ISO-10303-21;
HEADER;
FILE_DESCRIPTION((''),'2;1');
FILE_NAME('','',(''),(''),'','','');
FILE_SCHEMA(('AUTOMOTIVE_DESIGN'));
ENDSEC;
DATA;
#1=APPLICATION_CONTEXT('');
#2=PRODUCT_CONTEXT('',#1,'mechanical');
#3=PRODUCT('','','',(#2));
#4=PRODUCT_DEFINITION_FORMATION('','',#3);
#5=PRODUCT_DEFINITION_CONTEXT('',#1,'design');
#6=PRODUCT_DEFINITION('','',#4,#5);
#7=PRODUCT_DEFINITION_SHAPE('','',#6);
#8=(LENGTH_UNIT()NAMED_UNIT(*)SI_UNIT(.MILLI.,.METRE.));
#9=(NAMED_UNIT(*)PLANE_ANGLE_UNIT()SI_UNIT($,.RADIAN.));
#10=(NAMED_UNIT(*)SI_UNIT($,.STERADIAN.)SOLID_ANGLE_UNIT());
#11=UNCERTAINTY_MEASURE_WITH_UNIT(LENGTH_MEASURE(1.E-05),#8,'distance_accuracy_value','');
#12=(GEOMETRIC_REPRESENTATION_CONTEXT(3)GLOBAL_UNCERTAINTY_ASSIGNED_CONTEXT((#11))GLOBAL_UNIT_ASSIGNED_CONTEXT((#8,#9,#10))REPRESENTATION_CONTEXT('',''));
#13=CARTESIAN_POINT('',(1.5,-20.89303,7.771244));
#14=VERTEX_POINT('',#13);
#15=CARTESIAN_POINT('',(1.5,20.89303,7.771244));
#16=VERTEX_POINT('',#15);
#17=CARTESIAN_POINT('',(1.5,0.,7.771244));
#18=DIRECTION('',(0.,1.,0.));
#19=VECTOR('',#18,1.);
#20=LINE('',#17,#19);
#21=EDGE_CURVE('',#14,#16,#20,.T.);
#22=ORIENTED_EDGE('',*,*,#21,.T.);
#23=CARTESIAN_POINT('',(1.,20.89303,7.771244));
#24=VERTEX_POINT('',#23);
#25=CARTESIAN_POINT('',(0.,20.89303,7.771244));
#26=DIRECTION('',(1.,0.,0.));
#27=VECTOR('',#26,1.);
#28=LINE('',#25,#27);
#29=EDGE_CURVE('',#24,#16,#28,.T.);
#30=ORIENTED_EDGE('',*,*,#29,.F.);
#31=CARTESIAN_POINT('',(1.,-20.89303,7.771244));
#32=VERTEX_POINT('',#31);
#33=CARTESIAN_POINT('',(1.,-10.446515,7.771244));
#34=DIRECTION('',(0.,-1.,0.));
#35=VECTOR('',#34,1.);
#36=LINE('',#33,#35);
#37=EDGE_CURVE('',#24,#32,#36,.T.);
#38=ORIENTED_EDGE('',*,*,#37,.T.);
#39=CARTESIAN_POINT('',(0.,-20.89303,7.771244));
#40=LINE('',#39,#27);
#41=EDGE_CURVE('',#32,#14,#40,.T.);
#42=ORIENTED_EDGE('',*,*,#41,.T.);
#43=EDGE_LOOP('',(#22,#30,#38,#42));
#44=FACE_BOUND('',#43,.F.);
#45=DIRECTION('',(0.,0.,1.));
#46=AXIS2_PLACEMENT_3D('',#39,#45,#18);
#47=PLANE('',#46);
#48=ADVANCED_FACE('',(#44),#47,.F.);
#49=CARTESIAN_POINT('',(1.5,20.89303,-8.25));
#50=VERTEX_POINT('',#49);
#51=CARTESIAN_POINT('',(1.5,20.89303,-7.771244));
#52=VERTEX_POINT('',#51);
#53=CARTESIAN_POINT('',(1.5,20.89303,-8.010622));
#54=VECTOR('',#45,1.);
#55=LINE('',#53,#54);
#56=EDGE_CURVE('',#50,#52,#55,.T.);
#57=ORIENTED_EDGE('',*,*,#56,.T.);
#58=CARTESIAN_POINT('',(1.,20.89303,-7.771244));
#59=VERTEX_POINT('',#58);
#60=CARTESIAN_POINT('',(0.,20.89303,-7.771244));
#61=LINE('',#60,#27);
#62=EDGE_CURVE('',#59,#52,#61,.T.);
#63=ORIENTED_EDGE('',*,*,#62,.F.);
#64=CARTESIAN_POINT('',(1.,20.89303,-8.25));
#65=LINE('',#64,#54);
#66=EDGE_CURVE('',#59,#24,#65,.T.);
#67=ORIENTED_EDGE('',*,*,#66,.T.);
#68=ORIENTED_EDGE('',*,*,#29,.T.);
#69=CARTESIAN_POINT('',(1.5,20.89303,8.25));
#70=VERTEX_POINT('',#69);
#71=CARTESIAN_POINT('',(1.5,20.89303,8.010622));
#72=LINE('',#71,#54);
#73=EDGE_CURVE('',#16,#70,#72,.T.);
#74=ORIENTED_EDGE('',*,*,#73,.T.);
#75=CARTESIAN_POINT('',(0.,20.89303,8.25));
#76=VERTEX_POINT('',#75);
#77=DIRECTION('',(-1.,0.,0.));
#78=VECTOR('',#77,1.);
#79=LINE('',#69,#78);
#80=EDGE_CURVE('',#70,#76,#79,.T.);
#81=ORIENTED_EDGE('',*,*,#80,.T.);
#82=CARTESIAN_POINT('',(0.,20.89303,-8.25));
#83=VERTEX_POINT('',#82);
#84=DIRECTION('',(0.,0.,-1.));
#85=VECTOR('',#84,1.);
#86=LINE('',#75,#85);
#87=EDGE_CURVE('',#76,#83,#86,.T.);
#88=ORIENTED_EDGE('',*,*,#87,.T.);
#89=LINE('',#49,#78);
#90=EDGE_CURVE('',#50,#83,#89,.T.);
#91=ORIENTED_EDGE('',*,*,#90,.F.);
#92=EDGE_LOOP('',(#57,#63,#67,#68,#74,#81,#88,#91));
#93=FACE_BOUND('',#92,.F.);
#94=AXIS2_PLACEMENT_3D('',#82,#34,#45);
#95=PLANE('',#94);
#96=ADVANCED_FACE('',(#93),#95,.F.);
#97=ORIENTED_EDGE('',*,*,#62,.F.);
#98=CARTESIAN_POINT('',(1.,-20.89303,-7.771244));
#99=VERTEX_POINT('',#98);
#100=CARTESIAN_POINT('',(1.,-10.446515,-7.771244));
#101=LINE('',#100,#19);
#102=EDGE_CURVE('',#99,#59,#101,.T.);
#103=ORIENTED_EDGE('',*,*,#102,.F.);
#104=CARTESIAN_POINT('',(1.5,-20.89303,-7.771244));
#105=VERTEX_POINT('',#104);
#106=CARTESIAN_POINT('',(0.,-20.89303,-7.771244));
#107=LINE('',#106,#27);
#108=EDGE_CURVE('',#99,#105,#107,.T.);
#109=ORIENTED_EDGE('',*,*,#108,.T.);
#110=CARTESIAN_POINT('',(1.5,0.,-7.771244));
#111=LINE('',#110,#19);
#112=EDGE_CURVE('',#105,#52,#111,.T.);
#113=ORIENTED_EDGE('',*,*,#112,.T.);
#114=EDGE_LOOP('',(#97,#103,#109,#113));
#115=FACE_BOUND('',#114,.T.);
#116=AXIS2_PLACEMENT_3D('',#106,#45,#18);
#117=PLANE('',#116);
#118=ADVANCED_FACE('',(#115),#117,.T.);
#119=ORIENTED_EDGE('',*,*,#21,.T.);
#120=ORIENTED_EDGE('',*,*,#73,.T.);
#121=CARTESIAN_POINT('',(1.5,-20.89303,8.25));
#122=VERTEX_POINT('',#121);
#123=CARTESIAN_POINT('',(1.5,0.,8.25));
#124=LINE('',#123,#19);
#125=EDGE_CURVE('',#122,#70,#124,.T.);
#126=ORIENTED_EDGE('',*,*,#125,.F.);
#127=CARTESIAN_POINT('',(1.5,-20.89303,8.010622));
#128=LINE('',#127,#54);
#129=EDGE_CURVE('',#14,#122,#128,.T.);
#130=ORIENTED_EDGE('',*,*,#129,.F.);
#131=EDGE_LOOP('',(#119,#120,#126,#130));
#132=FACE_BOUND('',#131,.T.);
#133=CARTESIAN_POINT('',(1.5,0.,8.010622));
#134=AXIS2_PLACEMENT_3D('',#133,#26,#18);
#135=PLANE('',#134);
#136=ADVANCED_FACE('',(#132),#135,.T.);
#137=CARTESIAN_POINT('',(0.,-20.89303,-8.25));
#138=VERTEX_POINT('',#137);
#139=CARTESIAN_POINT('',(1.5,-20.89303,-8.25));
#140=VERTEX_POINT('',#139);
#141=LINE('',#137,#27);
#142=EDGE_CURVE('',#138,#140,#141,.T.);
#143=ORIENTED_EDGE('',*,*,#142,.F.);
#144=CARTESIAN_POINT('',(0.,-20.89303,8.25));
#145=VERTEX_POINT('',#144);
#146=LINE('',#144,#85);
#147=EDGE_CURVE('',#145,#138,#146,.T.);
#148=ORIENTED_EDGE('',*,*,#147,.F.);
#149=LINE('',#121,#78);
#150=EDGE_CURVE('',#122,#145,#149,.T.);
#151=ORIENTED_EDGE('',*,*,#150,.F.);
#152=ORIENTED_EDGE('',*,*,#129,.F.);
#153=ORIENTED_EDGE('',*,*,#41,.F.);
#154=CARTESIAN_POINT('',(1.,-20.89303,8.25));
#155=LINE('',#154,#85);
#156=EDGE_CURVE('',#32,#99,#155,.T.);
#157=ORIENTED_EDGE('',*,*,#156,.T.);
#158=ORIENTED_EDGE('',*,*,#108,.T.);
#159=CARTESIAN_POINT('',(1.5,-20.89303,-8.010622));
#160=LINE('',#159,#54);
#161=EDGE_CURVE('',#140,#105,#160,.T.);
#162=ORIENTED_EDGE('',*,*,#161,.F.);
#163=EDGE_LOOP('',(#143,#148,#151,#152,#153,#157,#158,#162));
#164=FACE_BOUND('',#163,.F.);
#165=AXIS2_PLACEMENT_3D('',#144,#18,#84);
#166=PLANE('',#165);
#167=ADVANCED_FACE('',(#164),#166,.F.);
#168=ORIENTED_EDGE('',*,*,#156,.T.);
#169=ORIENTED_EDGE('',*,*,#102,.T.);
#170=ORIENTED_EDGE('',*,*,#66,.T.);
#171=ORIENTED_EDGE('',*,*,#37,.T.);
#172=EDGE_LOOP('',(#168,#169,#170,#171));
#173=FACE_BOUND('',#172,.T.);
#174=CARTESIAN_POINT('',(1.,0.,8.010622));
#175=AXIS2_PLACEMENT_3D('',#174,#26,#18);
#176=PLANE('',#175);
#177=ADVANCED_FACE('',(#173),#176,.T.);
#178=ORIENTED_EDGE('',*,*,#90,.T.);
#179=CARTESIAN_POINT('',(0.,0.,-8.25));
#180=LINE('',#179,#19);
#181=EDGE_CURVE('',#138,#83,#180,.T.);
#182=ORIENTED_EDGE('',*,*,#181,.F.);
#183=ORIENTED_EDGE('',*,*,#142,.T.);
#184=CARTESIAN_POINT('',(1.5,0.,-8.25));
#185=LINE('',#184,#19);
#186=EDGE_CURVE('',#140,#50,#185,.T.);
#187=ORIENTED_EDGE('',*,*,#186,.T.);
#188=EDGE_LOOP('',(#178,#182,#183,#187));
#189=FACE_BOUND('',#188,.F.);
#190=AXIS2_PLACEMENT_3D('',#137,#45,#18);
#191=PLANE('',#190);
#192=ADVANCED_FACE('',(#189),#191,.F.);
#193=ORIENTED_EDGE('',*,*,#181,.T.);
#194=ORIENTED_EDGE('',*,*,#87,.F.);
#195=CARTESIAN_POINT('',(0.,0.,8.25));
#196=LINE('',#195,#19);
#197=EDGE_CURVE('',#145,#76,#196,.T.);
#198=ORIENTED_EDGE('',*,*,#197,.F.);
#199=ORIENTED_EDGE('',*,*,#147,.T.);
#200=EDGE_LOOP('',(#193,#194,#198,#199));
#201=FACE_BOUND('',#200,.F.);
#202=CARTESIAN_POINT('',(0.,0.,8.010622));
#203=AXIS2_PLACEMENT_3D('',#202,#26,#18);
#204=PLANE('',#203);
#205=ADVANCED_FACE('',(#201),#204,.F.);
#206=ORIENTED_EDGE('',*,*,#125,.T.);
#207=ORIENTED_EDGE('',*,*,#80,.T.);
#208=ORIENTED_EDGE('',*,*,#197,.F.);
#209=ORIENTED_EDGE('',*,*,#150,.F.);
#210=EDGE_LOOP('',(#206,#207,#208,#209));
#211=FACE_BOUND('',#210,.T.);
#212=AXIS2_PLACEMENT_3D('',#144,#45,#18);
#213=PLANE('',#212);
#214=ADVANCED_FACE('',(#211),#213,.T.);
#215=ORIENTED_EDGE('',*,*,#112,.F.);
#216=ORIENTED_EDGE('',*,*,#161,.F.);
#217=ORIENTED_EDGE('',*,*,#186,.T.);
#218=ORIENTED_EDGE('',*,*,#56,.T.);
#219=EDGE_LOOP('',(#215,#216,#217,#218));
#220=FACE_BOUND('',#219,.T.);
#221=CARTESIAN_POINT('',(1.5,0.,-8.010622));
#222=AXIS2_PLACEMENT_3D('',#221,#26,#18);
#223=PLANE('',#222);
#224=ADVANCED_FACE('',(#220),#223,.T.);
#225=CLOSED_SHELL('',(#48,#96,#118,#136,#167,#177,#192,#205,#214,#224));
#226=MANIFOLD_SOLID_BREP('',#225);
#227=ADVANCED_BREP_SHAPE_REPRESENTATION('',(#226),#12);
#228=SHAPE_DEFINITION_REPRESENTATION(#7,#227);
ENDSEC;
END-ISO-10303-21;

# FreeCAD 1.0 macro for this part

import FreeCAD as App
import Part
import Sketcher
from FreeCAD import Vector
Q = App.Units.Quantity


def add_polygon(sketch, points):
    """Adds a closed chain of lines whose ends are joined by coincident constraints."""
    first, n = sketch.GeometryCount, len(points)
    for a, b in zip(points, points[1:] + points[:1]):
        sketch.addGeometry(Part.LineSegment(App.Vector(*a, 0), App.Vector(*b, 0)), False)
    for i in range(n):
        sketch.addConstraint(Sketcher.Constraint("Coincident", first + i, 2, first + (i + 1) % n, 1))

doc = App.newDocument("Part")
params = doc.addObject("Spreadsheet::Sheet", "Params")
for row, (alias, value) in enumerate([
    ("pad1_length", "1.5 mm"),
    ("sketch2_height", "16.5 mm"),
    ("pad2_length", "1 mm"),
    ("pad3_length", "1.5 mm"),
], start=1):
    params.set(f"A{row}", alias)
    params.set(f"B{row}", "=" + value)
    params.setAlias(f"B{row}", alias)

body = doc.addObject("PartDesign::Body", "Body")

sketch1 = body.newObject("Sketcher::SketchObject", "Sketch")
sketch1.AttachmentSupport = (doc.getObject("YZ_Plane"), [""])
sketch1.MapMode = "FlatFace"
add_polygon(sketch1, [(-20.89, -7.77), (-20.89, -8.25), (20.89, -8.25), (20.89, -7.77)])
sketch1.addConstraint([
    Sketcher.Constraint("Vertical", 0),
    Sketcher.Constraint("Horizontal", 1),
    Sketcher.Constraint("Vertical", 2),
    Sketcher.Constraint("Horizontal", 3),
    Sketcher.Constraint("DistanceY", 0, 2, -1, 1, Q("8.25 mm")),
    Sketcher.Constraint("DistanceX", 1, 1, 1, 2, Q("41.78606 mm")),
    Sketcher.Constraint("DistanceY", 0, 2, 0, 1, Q("0.478756 mm")),
    Sketcher.Constraint("DistanceX", 0, 2, -1, 1, Q("20.89303 mm")),
])
pad1 = body.newObject("PartDesign::Pad", "Pad")
pad1.Profile = sketch1
pad1.setExpression("Length", "Params.pad1_length")

sketch2 = body.newObject("Sketcher::SketchObject", "Sketch001")
sketch2.AttachmentSupport = (doc.getObject("YZ_Plane"), [""])
sketch2.MapMode = "FlatFace"
add_polygon(sketch2, [(-21, 8), (-21, -8), (21, -8), (21, 8)])
sketch2.addConstraint([
    Sketcher.Constraint("Vertical", 0),
    Sketcher.Constraint("Horizontal", 1),
    Sketcher.Constraint("Vertical", 2),
    Sketcher.Constraint("Horizontal", 3),
    Sketcher.Constraint("Symmetric", 0, 2, 2, 2, -1, 1),
    Sketcher.Constraint("DistanceY", 0, 2, 0, 1, Q("16.5 mm")),
    Sketcher.Constraint("DistanceX", 1, 1, 1, 2, Q("41.78606 mm")),
])
sketch2.setExpression("Constraints[9]", "Params.sketch2_height")
pad2 = body.newObject("PartDesign::Pad", "Pad001")
pad2.Profile = sketch2
pad2.setExpression("Length", "Params.pad2_length")

sketch3 = body.newObject("Sketcher::SketchObject", "Sketch002")
sketch3.AttachmentSupport = (doc.getObject("YZ_Plane"), [""])
sketch3.MapMode = "FlatFace"
add_polygon(sketch3, [(-20.89, 8.25), (-20.89, 7.77), (20.89, 7.77), (20.89, 8.25)])
sketch3.addConstraint([
    Sketcher.Constraint("Vertical", 0),
    Sketcher.Constraint("Horizontal", 1),
    Sketcher.Constraint("Vertical", 2),
    Sketcher.Constraint("Horizontal", 3),
    Sketcher.Constraint("DistanceY", -1, 1, 2, 2, Q("8.25 mm")),
    Sketcher.Constraint("DistanceX", 1, 1, 1, 2, Q("41.78606 mm")),
    Sketcher.Constraint("DistanceY", 0, 2, 0, 1, Q("0.478756 mm")),
    Sketcher.Constraint("DistanceX", 0, 2, -1, 1, Q("20.89303 mm")),
])
pad3 = body.newObject("PartDesign::Pad", "Pad002")
pad3.Profile = sketch3
pad3.setExpression("Length", "Params.pad3_length")

doc.recompute()
